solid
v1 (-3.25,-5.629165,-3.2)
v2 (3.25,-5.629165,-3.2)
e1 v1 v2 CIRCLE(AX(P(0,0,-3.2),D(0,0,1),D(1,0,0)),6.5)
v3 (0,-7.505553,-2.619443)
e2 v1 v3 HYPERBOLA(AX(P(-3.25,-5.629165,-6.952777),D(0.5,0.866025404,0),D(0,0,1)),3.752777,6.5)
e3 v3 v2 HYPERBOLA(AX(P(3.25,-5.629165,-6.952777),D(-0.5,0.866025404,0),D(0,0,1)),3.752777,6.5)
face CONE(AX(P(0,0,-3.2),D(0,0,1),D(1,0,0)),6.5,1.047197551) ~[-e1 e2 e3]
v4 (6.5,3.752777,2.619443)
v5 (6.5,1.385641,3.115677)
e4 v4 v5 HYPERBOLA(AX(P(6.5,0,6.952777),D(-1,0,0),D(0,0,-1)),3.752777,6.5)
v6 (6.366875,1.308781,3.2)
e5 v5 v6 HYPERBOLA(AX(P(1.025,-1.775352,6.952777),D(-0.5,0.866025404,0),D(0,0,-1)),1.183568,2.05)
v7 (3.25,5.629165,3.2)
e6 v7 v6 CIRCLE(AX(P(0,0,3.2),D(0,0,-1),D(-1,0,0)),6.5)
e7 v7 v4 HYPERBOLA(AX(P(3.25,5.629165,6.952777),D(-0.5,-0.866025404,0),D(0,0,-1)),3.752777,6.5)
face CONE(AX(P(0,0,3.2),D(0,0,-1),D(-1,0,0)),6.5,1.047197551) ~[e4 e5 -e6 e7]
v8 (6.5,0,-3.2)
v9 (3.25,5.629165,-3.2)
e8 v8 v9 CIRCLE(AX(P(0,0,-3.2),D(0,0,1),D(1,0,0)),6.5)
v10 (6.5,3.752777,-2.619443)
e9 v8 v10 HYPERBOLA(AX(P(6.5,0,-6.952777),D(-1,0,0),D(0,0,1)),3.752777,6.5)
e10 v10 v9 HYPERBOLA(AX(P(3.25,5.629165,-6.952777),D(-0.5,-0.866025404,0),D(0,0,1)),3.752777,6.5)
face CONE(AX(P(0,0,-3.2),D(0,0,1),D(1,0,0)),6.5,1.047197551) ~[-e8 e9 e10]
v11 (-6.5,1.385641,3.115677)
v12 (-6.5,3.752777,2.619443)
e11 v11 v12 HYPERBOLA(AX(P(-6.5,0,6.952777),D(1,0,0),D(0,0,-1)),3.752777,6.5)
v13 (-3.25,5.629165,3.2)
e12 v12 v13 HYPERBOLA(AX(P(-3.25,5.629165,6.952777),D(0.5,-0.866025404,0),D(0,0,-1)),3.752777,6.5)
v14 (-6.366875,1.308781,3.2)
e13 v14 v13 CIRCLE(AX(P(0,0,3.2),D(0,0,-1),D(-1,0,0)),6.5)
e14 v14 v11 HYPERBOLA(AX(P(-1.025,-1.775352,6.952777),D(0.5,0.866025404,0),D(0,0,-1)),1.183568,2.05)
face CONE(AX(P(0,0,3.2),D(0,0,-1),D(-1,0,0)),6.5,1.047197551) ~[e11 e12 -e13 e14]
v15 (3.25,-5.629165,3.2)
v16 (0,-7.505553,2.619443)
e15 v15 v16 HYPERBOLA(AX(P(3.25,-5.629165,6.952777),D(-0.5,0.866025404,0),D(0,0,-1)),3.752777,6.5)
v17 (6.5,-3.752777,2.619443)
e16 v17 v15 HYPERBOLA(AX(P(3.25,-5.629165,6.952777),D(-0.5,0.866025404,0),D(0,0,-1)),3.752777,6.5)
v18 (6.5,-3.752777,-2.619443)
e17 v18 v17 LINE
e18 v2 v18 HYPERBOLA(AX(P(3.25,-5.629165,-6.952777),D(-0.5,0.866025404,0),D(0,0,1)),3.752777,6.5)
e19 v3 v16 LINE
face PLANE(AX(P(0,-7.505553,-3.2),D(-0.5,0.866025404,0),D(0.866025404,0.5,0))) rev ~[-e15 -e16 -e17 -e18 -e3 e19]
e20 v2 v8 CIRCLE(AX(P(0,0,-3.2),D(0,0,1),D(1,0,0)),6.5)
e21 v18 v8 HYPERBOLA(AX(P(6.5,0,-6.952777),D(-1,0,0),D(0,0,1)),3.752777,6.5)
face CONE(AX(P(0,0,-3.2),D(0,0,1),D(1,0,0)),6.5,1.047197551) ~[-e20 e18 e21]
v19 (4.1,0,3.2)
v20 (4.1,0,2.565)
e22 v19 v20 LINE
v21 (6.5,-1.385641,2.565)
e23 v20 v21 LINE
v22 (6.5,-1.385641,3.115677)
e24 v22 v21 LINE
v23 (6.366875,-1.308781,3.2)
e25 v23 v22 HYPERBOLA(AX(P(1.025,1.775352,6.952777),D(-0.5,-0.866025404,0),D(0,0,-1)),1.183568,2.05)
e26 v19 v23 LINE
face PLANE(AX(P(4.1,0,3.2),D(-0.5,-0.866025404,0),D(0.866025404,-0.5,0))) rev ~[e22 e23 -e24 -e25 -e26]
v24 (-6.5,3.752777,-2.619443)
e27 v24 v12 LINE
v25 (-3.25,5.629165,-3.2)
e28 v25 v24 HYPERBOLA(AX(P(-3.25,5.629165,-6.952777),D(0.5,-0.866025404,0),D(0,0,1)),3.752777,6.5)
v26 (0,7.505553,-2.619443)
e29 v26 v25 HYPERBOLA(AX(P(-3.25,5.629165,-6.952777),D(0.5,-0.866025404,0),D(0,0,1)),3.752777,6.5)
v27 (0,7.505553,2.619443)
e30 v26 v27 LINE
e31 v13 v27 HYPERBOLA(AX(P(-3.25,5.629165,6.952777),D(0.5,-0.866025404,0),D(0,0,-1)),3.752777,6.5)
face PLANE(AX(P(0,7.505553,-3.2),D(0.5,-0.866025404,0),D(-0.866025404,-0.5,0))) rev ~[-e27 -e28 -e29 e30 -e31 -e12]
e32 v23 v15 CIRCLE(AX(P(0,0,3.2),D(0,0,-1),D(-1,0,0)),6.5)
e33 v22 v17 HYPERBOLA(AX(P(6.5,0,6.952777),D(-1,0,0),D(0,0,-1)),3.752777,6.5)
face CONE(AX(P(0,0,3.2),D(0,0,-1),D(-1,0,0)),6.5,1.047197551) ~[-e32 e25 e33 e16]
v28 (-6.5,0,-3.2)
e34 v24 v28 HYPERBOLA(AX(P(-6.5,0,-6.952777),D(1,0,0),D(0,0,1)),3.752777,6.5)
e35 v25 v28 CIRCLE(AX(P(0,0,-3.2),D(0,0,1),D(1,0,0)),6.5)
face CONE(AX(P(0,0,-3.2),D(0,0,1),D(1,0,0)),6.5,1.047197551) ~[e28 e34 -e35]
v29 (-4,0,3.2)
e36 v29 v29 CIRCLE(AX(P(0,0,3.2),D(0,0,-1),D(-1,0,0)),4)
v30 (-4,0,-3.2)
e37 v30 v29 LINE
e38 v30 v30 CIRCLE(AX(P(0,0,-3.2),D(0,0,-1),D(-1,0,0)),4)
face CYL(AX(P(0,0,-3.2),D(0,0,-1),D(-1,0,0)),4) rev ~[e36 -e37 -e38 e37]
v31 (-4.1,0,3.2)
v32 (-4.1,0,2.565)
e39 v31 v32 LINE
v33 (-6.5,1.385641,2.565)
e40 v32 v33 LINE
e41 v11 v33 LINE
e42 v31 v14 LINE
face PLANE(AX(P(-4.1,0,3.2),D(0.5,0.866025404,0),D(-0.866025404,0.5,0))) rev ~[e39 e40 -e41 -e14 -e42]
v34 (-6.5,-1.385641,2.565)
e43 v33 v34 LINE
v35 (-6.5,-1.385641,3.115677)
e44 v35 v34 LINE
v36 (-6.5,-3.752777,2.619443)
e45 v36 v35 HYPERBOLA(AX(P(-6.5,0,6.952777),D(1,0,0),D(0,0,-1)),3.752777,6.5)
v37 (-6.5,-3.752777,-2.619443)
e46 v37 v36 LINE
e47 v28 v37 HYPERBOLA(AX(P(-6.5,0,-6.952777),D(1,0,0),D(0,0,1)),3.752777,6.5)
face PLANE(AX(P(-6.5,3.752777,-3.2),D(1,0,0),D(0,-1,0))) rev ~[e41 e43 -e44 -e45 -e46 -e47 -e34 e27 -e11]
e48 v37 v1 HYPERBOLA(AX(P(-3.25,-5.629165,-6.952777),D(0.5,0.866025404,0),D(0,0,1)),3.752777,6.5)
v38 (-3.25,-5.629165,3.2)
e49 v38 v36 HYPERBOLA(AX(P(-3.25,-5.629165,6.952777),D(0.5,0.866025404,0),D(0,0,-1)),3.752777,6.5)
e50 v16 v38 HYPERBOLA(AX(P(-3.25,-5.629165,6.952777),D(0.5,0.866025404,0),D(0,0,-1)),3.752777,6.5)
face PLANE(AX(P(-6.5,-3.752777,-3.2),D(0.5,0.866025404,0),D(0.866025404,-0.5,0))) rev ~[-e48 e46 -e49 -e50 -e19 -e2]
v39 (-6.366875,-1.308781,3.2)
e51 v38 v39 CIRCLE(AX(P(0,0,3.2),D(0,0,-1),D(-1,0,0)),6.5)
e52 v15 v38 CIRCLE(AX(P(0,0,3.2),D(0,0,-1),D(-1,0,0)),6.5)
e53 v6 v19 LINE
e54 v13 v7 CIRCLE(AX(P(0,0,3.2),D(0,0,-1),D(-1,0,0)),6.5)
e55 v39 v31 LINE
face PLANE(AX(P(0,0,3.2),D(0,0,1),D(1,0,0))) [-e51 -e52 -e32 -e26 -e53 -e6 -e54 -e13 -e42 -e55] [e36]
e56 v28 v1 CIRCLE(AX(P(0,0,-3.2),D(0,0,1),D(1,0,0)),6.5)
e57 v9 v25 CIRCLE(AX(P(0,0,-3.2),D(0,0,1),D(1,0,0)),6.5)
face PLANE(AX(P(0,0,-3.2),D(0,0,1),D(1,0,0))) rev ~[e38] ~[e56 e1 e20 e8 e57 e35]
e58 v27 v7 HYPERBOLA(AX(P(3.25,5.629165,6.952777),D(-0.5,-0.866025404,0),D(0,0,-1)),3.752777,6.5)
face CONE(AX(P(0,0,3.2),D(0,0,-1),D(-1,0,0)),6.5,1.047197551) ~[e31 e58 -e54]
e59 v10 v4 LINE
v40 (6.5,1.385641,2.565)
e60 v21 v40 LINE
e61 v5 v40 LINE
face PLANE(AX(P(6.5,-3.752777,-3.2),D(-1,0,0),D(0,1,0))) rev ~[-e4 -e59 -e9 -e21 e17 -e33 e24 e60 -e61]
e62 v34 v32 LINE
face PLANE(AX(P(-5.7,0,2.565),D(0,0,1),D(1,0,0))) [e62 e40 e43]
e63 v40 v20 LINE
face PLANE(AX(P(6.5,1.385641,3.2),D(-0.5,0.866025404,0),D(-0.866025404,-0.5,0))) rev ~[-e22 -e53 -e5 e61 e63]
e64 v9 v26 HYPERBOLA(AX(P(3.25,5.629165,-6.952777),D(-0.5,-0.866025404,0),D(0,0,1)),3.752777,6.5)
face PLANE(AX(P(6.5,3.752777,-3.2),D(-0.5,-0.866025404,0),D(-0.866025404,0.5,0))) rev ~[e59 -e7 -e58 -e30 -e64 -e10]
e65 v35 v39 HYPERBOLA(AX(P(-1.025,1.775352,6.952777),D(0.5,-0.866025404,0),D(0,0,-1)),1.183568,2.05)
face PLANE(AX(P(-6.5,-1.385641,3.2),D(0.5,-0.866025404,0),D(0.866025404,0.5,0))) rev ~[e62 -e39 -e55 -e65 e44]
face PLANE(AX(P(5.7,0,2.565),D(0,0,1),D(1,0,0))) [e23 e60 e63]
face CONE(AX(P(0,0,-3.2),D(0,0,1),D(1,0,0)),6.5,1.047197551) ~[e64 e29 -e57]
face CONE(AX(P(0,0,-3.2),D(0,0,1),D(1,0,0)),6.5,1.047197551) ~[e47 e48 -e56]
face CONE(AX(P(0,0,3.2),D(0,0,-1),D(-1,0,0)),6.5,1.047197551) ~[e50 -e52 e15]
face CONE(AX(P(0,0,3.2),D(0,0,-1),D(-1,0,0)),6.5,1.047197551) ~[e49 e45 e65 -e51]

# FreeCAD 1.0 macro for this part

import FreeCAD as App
import Part
import Sketcher
Q = App.Units.Quantity


def faces_at(feature, points):
    """Names of the faces that lie closest to the given points."""
    faces = feature.Shape.Faces
    near = lambda p: min(range(len(faces)), key=lambda i: faces[i].distToShape(Part.Vertex(*p))[0])
    return sorted({f"Face{near(p) + 1}" for p in points})


def add_polygon(sketch, points):
    """Adds a closed chain of lines whose ends are joined by coincident constraints."""
    first, n = sketch.GeometryCount, len(points)
    for a, b in zip(points, points[1:] + points[:1]):
        sketch.addGeometry(Part.LineSegment(App.Vector(*a, 0), App.Vector(*b, 0)), False)
    for i in range(n):
        sketch.addConstraint(Sketcher.Constraint("Coincident", first + i, 2, first + (i + 1) % n, 1))

doc = App.newDocument("Part")
body = doc.addObject("PartDesign::Body", "Body")

sketch1 = body.newObject("Sketcher::SketchObject", "Sketch")
sketch1.AttachmentSupport = (doc.getObject("XY_Plane"), [""])
sketch1.MapMode = "FlatFace"
add_polygon(sketch1, [(0, 7.505553), (-6.5, 3.752777), (-6.5, -3.752777), (0, -7.505553), (6.5, -3.752777), (6.5, 3.752777)])
sketch1.addConstraint(Sketcher.Constraint("Vertical", 1))
sketch1.addConstraint(Sketcher.Constraint("Vertical", 4))
sketch1.addConstraint(Sketcher.Constraint("Symmetric", 0, 2, 3, 2, -1, 1))
sketch1.addConstraint(Sketcher.Constraint("Symmetric", 2, 2, 5, 2, -1, 1))
sketch1.addConstraint(Sketcher.Constraint("PointOnObject", 2, 2, -2))
sketch1.addConstraint(Sketcher.Constraint("Parallel", 2, 5))
sketch1.addConstraint(Sketcher.Constraint("Horizontal", 1, 2, 3, 2))
sketch1.addConstraint(Sketcher.Constraint("Angle", 0, Q("-150 deg")))
sketch1.addConstraint(Sketcher.Constraint("DistanceX", 1, 2, 3, 2, Q("13 mm")))
sketch1.addConstraint(Sketcher.Constraint("DistanceY", 1, 2, 1, 1, Q("7.505554 mm")))
pad1 = body.newObject("PartDesign::Pad", "Pad")
pad1.Profile = sketch1
pad1.Type = "TwoLengths"
pad1.Length = 3.2
pad1.Length2 = 3.2
body2 = doc.addObject("PartDesign::Body", "Body001")

sketch2 = body2.newObject("Sketcher::SketchObject", "Sketch001")
sketch2.AttachmentSupport = (doc.getObject("XY_Plane001"), [""])
sketch2.MapMode = "FlatFace"
sketch2.AttachmentOffset = App.Placement(App.Vector(0, 0, 3.2), App.Rotation())
add_polygon(sketch2, [(31.779, 32.785), (31.779, -32.785), (-31.779, -32.785), (-31.779, 32.785)])
sketch2.addGeometry(Part.Circle(App.Vector(0, 0, 0), App.Vector(0, 0, 1), 6.5), False)
sketch2.addConstraint(Sketcher.Constraint("Vertical", 0))
sketch2.addConstraint(Sketcher.Constraint("Horizontal", 1))
sketch2.addConstraint(Sketcher.Constraint("Vertical", 2))
sketch2.addConstraint(Sketcher.Constraint("Horizontal", 3))
sketch2.addConstraint(Sketcher.Constraint("Coincident", 4, 3, -1, 1))
sketch2.addConstraint(Sketcher.Constraint("Symmetric", 0, 2, 2, 2, -1, 1))
sketch2.addConstraint(Sketcher.Constraint("Diameter", 4, Q("13 mm")))
sketch2.addConstraint(Sketcher.Constraint("DistanceY", 0, 2, 0, 1, Q("65.57 mm")))
sketch2.addConstraint(Sketcher.Constraint("DistanceX", 1, 2, 1, 1, Q("63.558 mm")))
pad2 = body2.newObject("PartDesign::Pad", "Pad001")
pad2.Profile = sketch2
pad2.Length = 12.812846
pad2.Reversed = True
doc.recompute()

datumplane = body2.newObject("PartDesign::Plane", "DatumPlane")
datumplane.AttachmentSupport = (doc.getObject("XY_Plane001"), [""])
datumplane.MapMode = "FlatFace"
datumplane.AttachmentOffset = App.Placement(App.Vector(0, 0, 3.2), App.Rotation())
draft = body2.newObject("PartDesign::Draft", "Draft")
draft.Base = (pad2, faces_at(pad2, [
    (0, -32.785, -3.206),
    (-31.779, 0, -3.206),
    (0, 32.785, -3.206),
    (31.779, 0, -3.206),
    (6.5, 0, -3.206),
]))
draft.NeutralPlane = (datumplane, [""])
draft.Angle = 60
draft.Reversed = True
doc.recompute()

boolean = body.newObject("PartDesign::Boolean", "Boolean")
boolean.Type = "Cut"
boolean.addObjects([body2])
body3 = doc.addObject("PartDesign::Body", "Body002")

sketch3 = body3.newObject("Sketcher::SketchObject", "Sketch002")
sketch3.AttachmentSupport = (doc.getObject("XY_Plane002"), [""])
sketch3.MapMode = "FlatFace"
sketch3.AttachmentOffset = App.Placement(App.Vector(0, 0, -3.2), App.Rotation())
add_polygon(sketch3, [(-31.779, 32.785), (-31.779, -32.785), (31.779, -32.785), (31.779, 32.785)])
sketch3.addGeometry(Part.Circle(App.Vector(0, 0, 0), App.Vector(0, 0, 1), 6.5), False)
sketch3.addConstraint(Sketcher.Constraint("Vertical", 0))
sketch3.addConstraint(Sketcher.Constraint("Horizontal", 1))
sketch3.addConstraint(Sketcher.Constraint("Vertical", 2))
sketch3.addConstraint(Sketcher.Constraint("Horizontal", 3))
sketch3.addConstraint(Sketcher.Constraint("Coincident", 4, 3, -1, 1))
sketch3.addConstraint(Sketcher.Constraint("Symmetric", 0, 2, 2, 2, -1, 1))
sketch3.addConstraint(Sketcher.Constraint("Diameter", 4, Q("13 mm")))
sketch3.addConstraint(Sketcher.Constraint("DistanceY", 0, 2, 0, 1, Q("65.57 mm")))
sketch3.addConstraint(Sketcher.Constraint("DistanceX", 1, 1, 1, 2, Q("63.558 mm")))
pad3 = body3.newObject("PartDesign::Pad", "Pad002")
pad3.Profile = sketch3
pad3.Length = 12.812846
doc.recompute()

datumplane2 = body3.newObject("PartDesign::Plane", "DatumPlane001")
datumplane2.AttachmentSupport = (doc.getObject("XY_Plane002"), [""])
datumplane2.MapMode = "FlatFace"
datumplane2.AttachmentOffset = App.Placement(App.Vector(0, 0, -3.2), App.Rotation())
draft2 = body3.newObject("PartDesign::Draft", "Draft001")
draft2.Base = (pad3, faces_at(pad3, [
    (0, -32.785, 3.206),
    (31.779, 0, 3.206),
    (0, 32.785, 3.206),
    (-31.779, 0, 3.206),
    (-6.5, 0, 3.206),
]))
draft2.NeutralPlane = (datumplane2, [""])
draft2.Angle = 60
draft2.Reversed = False
doc.recompute()

boolean2 = body.newObject("PartDesign::Boolean", "Boolean001")
boolean2.Type = "Cut"
boolean2.addObjects([body3])

sketch4 = body.newObject("Sketcher::SketchObject", "Sketch003")
sketch4.AttachmentSupport = (doc.getObject("XY_Plane"), [""])
sketch4.MapMode = "FlatFace"
sketch4.AttachmentOffset = App.Placement(App.Vector(0, 0, -3.2), App.Rotation())
sketch4.addGeometry(Part.Circle(App.Vector(0, 0, 0), App.Vector(0, 0, 1), 4), False)
sketch4.addConstraint(Sketcher.Constraint("Coincident", 0, 3, -1, 1))
sketch4.addConstraint(Sketcher.Constraint("Diameter", 0, Q("8 mm")))
pocket1 = body.newObject("PartDesign::Pocket", "Pocket")
pocket1.Profile = sketch4
pocket1.Type = "ThroughAll"
pocket1.Reversed = True

sketch5 = body.newObject("Sketcher::SketchObject", "Sketch004")
sketch5.AttachmentSupport = (doc.getObject("XY_Plane"), [""])
sketch5.MapMode = "FlatFace"
sketch5.AttachmentOffset = App.Placement(App.Vector(0, 0, 3.2), App.Rotation())
add_polygon(sketch5, [(-4.1, 0), (-6.5, 1.385641), (-6.5, -1.385641)])
add_polygon(sketch5, [(4.1, 0), (6.5, -1.385641), (6.5, 1.385641)])
sketch5.addConstraint(Sketcher.Constraint("Vertical", 1))
sketch5.addConstraint(Sketcher.Constraint("Vertical", 4))
sketch5.addConstraint(Sketcher.Constraint("Symmetric", 0, 2, 3, 2, -1, 1))
sketch5.addConstraint(Sketcher.Constraint("Symmetric", 2, 2, 5, 2, -1, 1))
sketch5.addConstraint(Sketcher.Constraint("PointOnObject", 2, 2, -1))
sketch5.addConstraint(Sketcher.Constraint("Parallel", 2, 5))
sketch5.addConstraint(Sketcher.Constraint("Horizontal", 1, 2, 3, 2))
sketch5.addConstraint(Sketcher.Constraint("Angle", 0, Q("150 deg")))
sketch5.addConstraint(Sketcher.Constraint("DistanceX", 1, 2, 3, 2, Q("13 mm")))
sketch5.addConstraint(Sketcher.Constraint("DistanceX", 2, 2, -1, 1, Q("4.1 mm")))
pocket2 = body.newObject("PartDesign::Pocket", "Pocket001")
pocket2.Profile = sketch5
pocket2.Length = 0.635

doc.recompute()
